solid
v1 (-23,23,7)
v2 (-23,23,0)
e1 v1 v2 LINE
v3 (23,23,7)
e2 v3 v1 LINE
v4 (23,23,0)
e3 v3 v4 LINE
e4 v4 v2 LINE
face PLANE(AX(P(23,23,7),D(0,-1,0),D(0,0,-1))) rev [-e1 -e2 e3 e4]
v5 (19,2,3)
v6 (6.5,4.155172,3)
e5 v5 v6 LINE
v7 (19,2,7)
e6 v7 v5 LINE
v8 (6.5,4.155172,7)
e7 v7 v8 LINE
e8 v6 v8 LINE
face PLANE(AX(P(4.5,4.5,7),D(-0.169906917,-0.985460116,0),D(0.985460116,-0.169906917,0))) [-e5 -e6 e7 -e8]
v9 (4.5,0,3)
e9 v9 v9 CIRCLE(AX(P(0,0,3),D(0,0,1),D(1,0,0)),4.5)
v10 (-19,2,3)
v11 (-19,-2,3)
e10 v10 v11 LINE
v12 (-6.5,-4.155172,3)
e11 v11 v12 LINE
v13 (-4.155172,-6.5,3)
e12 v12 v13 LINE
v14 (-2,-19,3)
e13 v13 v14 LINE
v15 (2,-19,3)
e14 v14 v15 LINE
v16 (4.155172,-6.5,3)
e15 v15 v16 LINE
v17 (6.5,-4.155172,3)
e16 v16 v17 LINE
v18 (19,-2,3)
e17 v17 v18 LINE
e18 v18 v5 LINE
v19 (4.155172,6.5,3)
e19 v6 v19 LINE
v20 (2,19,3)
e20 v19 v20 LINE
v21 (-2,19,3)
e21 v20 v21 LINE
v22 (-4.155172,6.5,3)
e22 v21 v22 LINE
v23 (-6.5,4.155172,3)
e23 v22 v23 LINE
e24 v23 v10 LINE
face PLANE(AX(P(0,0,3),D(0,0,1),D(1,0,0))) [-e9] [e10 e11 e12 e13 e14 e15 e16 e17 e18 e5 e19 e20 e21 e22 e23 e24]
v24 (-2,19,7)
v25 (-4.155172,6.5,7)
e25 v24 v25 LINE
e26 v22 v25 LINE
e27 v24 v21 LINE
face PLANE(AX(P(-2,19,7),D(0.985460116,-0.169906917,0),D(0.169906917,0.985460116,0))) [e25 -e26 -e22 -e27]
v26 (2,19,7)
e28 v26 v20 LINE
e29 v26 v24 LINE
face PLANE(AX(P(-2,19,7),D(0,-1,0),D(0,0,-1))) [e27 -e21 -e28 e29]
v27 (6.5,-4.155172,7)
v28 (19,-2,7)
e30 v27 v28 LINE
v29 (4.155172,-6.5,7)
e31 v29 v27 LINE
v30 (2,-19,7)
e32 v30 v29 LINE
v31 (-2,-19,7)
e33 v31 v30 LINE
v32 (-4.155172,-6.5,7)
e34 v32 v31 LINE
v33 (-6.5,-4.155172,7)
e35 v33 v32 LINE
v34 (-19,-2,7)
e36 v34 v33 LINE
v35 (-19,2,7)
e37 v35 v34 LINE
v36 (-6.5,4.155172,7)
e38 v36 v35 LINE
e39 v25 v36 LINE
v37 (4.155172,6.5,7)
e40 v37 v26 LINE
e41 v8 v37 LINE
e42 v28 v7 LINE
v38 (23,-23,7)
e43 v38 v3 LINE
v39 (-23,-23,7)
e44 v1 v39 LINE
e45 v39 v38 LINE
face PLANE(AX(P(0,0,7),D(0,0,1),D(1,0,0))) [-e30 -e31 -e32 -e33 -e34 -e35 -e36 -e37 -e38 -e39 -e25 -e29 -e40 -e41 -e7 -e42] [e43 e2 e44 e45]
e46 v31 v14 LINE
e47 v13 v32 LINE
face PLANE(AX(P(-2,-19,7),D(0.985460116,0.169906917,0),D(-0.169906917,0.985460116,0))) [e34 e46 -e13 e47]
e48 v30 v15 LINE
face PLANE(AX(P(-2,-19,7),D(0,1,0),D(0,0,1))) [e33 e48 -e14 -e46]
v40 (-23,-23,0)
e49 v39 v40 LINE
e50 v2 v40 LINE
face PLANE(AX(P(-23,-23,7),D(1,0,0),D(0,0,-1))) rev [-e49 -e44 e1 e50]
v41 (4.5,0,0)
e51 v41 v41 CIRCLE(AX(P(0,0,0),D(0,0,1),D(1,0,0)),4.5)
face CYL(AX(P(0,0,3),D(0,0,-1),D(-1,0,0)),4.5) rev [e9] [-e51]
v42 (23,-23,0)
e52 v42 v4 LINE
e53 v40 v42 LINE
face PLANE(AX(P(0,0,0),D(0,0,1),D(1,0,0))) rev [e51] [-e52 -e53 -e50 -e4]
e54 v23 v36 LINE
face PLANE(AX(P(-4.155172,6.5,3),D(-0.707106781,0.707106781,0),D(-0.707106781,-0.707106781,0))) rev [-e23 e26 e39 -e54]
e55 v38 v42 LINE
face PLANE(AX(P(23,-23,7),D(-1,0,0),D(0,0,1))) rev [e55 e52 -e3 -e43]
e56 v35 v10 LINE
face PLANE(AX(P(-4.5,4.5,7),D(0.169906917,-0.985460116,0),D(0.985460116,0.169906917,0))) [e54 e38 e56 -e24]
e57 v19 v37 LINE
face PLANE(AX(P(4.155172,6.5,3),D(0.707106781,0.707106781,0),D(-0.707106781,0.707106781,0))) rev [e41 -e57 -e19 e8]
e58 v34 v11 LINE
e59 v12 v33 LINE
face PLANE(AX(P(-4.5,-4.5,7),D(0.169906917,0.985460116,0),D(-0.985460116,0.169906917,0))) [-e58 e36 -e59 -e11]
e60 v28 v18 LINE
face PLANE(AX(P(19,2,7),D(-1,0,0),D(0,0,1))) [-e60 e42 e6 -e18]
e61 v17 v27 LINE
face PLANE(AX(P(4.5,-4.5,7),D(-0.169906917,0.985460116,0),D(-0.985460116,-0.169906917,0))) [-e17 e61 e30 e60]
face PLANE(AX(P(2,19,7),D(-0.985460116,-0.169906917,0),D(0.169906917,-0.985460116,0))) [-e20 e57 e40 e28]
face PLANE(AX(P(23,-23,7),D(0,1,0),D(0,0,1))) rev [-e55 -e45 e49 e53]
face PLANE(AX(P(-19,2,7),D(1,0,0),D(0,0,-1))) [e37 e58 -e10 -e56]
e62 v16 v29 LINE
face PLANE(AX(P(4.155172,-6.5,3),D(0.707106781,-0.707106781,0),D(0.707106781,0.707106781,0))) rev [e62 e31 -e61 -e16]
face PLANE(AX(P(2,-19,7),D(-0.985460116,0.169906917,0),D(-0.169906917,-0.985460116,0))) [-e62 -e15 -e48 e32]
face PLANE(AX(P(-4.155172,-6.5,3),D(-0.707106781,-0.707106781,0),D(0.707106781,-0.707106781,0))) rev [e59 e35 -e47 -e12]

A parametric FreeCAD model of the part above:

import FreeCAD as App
import Part
import Sketcher


def add_polygon(sketch, points):
    """Adds a closed chain of lines whose ends are joined by coincident constraints."""
    first, n = sketch.GeometryCount, len(points)
    for a, b in zip(points, points[1:] + points[:1]):
        sketch.addGeometry(Part.LineSegment(App.Vector(*a, 0), App.Vector(*b, 0)), False)
    for i in range(n):
        sketch.addConstraint(Sketcher.Constraint("Coincident", first + i, 2, first + (i + 1) % n, 1))

doc = App.newDocument("Part")
params = doc.addObject("Spreadsheet::Sheet", "Params")
for row, (alias, value) in enumerate([
    ("sketch1_width", "46 mm"),
    ("sketch1_width2", "4 mm"),
    ("pad1_length", "7 mm"),
    ("sketch2_width", "46 mm"),
    ("pad2_length", "3 mm"),
    ("sketch3_diameter", "9 mm"),
    ("pocket1_length", "3 mm"),
    ("pocket2_length", "4 mm"),
], start=1):
    params.set(f"A{row}", alias)
    params.set(f"B{row}", "=" + value)
    params.setAlias(f"B{row}", alias)

body = doc.addObject("PartDesign::Body", "Body")

sketch1 = body.newObject("Sketcher::SketchObject", "Sketch")
sketch1.AttachmentSupport = (doc.getObject("XY_Plane"), [""])
sketch1.MapMode = "FlatFace"
add_polygon(sketch1, [(-23, 23), (-23, -23), (23, -23), (23, 23)])
add_polygon(sketch1, [(-4.5, 4.5), (-2, 19), (2, 19), (4.5, 4.5), (19, 2), (19, -2), (4.5, -4.5), (2, -19), (-2, -19), (-4.5, -4.5), (-19, -2), (-19, 2)])
sketch1.addConstraint(Sketcher.Constraint("Vertical", 0))
sketch1.addConstraint(Sketcher.Constraint("Horizontal", 1))
sketch1.addConstraint(Sketcher.Constraint("Vertical", 2))
sketch1.addConstraint(Sketcher.Constraint("Horizontal", 3))
sketch1.addConstraint(Sketcher.Constraint("Horizontal", 5))
sketch1.addConstraint(Sketcher.Constraint("Vertical", 8))
sketch1.addConstraint(Sketcher.Constraint("Horizontal", 11))
sketch1.addConstraint(Sketcher.Constraint("Vertical", 14))
sketch1.addConstraint(Sketcher.Constraint("Symmetric", 0, 2, 2, 2, -1, 1))
sketch1.addConstraint(Sketcher.Constraint("Symmetric", 4, 2, 10, 2, -1, 1))
sketch1.addConstraint(Sketcher.Constraint("Symmetric", 6, 2, 12, 2, -1, 1))
sketch1.addConstraint(Sketcher.Constraint("Symmetric", 7, 2, 13, 2, -1, 1))
sketch1.addConstraint(Sketcher.Constraint("Symmetric", 9, 2, 15, 2, -1, 1))
sketch1.addConstraint(Sketcher.Constraint("Symmetric", 9, 2, 12, 2, -2))
sketch1.addConstraint(Sketcher.Constraint("Perpendicular", 4, 7))
sketch1.addConstraint(Sketcher.Constraint("Perpendicular", 6, 9))
sketch1.addConstraint(Sketcher.Constraint("Perpendicular", 9, 12))
sketch1.addConstraint(Sketcher.Constraint("Perpendicular", 12, 15))
sketch1.addConstraint(Sketcher.Constraint("Horizontal", 8, 2, 13, 2))
sketch1.addConstraint(Sketcher.Constraint("Equal", 3, 0))
sketch1.addConstraint(Sketcher.Constraint("Equal", 11, 8))
sketch1.addConstraint(Sketcher.Constraint("Equal", 6, 7))
sketch1.addConstraint(Sketcher.Constraint("DistanceX", 1, 1, 1, 2, 46.0))
sketch1.addConstraint(Sketcher.Constraint("DistanceX", 5, 1, 5, 2, 4.0))
sketch1.addConstraint(Sketcher.Constraint("DistanceY", -1, 1, 4, 2, 19.0))
sketch1.addConstraint(Sketcher.Constraint("DistanceY", 9, 2, 6, 2, 9.0))
sketch1.setExpression("Constraints[38]", "Params.sketch1_width")
sketch1.setExpression("Constraints[39]", "Params.sketch1_width2")
pad1 = body.newObject("PartDesign::Pad", "Pad")
pad1.Profile = sketch1
pad1.setExpression("Length", "Params.pad1_length")

sketch2 = body.newObject("Sketcher::SketchObject", "Sketch001")
sketch2.AttachmentSupport = (doc.getObject("XY_Plane"), [""])
sketch2.MapMode = "FlatFace"
add_polygon(sketch2, [(-23, 23), (-23, -23), (23, -23), (23, 23)])
sketch2.addConstraint(Sketcher.Constraint("Vertical", 0))
sketch2.addConstraint(Sketcher.Constraint("Horizontal", 1))
sketch2.addConstraint(Sketcher.Constraint("Vertical", 2))
sketch2.addConstraint(Sketcher.Constraint("Horizontal", 3))
sketch2.addConstraint(Sketcher.Constraint("Symmetric", 0, 2, 2, 2, -1, 1))
sketch2.addConstraint(Sketcher.Constraint("Equal", 3, 0))
sketch2.addConstraint(Sketcher.Constraint("DistanceX", 1, 1, 1, 2, 46.0))
sketch2.setExpression("Constraints[10]", "Params.sketch2_width")
pad2 = body.newObject("PartDesign::Pad", "Pad001")
pad2.Profile = sketch2
pad2.setExpression("Length", "Params.pad2_length")

sketch3 = body.newObject("Sketcher::SketchObject", "Sketch002")
sketch3.AttachmentSupport = (doc.getObject("XY_Plane"), [""])
sketch3.MapMode = "FlatFace"
sketch3.addGeometry(Part.Circle(App.Vector(0, 0, 0), App.Vector(0, 0, 1), 4.5), False)
sketch3.addConstraint(Sketcher.Constraint("Coincident", 0, 3, -1, 1))
sketch3.addConstraint(Sketcher.Constraint("Diameter", 0, 9.0))
sketch3.setExpression("Constraints[1]", "Params.sketch3_diameter")
pocket1 = body.newObject("PartDesign::Pocket", "Pocket")
pocket1.Profile = sketch3
pocket1.setExpression("Length", "Params.pocket1_length")
pocket1.Reversed = True

sketch4 = body.newObject("Sketcher::SketchObject", "Sketch003")
sketch4.AttachmentSupport = (doc.getObject("XY_Plane"), [""])
sketch4.MapMode = "FlatFace"
sketch4.AttachmentOffset = App.Placement(App.Vector(0, 0, 7), App.Rotation())
add_polygon(sketch4, [(-4.155172, 6.5), (-6.5, 4.155172), (-6.5, -4.155172), (-4.155172, -6.5), (4.155172, -6.5), (6.5, -4.155172), (6.5, 4.155172), (4.155172, 6.5)])
sketch4.addConstraint(Sketcher.Constraint("Vertical", 1))
sketch4.addConstraint(Sketcher.Constraint("Horizontal", 3))
sketch4.addConstraint(Sketcher.Constraint("Vertical", 5))
sketch4.addConstraint(Sketcher.Constraint("Horizontal", 7))
sketch4.addConstraint(Sketcher.Constraint("Symmetric", 0, 2, 4, 2, -1, 1))
sketch4.addConstraint(Sketcher.Constraint("Symmetric", 2, 2, 6, 2, -1, 1))
sketch4.addConstraint(Sketcher.Constraint("Perpendicular", 0, 2))
sketch4.addConstraint(Sketcher.Constraint("Perpendicular", 2, 4))
sketch4.addConstraint(Sketcher.Constraint("Perpendicular", 4, 6))
sketch4.addConstraint(Sketcher.Constraint("Horizontal", 1, 2, 4, 2))
sketch4.addConstraint(Sketcher.Constraint("Vertical", 3, 2, 6, 2))
sketch4.addConstraint(Sketcher.Constraint("Equal", 7, 1))
sketch4.addConstraint(Sketcher.Constraint("DistanceX", 1, 2, 4, 2, 13.0))
sketch4.addConstraint(Sketcher.Constraint("DistanceX", 3, 1, 3, 2, 8.310345))
pocket2 = body.newObject("PartDesign::Pocket", "Pocket001")
pocket2.Profile = sketch4
pocket2.setExpression("Length", "Params.pocket2_length")

doc.recompute()
